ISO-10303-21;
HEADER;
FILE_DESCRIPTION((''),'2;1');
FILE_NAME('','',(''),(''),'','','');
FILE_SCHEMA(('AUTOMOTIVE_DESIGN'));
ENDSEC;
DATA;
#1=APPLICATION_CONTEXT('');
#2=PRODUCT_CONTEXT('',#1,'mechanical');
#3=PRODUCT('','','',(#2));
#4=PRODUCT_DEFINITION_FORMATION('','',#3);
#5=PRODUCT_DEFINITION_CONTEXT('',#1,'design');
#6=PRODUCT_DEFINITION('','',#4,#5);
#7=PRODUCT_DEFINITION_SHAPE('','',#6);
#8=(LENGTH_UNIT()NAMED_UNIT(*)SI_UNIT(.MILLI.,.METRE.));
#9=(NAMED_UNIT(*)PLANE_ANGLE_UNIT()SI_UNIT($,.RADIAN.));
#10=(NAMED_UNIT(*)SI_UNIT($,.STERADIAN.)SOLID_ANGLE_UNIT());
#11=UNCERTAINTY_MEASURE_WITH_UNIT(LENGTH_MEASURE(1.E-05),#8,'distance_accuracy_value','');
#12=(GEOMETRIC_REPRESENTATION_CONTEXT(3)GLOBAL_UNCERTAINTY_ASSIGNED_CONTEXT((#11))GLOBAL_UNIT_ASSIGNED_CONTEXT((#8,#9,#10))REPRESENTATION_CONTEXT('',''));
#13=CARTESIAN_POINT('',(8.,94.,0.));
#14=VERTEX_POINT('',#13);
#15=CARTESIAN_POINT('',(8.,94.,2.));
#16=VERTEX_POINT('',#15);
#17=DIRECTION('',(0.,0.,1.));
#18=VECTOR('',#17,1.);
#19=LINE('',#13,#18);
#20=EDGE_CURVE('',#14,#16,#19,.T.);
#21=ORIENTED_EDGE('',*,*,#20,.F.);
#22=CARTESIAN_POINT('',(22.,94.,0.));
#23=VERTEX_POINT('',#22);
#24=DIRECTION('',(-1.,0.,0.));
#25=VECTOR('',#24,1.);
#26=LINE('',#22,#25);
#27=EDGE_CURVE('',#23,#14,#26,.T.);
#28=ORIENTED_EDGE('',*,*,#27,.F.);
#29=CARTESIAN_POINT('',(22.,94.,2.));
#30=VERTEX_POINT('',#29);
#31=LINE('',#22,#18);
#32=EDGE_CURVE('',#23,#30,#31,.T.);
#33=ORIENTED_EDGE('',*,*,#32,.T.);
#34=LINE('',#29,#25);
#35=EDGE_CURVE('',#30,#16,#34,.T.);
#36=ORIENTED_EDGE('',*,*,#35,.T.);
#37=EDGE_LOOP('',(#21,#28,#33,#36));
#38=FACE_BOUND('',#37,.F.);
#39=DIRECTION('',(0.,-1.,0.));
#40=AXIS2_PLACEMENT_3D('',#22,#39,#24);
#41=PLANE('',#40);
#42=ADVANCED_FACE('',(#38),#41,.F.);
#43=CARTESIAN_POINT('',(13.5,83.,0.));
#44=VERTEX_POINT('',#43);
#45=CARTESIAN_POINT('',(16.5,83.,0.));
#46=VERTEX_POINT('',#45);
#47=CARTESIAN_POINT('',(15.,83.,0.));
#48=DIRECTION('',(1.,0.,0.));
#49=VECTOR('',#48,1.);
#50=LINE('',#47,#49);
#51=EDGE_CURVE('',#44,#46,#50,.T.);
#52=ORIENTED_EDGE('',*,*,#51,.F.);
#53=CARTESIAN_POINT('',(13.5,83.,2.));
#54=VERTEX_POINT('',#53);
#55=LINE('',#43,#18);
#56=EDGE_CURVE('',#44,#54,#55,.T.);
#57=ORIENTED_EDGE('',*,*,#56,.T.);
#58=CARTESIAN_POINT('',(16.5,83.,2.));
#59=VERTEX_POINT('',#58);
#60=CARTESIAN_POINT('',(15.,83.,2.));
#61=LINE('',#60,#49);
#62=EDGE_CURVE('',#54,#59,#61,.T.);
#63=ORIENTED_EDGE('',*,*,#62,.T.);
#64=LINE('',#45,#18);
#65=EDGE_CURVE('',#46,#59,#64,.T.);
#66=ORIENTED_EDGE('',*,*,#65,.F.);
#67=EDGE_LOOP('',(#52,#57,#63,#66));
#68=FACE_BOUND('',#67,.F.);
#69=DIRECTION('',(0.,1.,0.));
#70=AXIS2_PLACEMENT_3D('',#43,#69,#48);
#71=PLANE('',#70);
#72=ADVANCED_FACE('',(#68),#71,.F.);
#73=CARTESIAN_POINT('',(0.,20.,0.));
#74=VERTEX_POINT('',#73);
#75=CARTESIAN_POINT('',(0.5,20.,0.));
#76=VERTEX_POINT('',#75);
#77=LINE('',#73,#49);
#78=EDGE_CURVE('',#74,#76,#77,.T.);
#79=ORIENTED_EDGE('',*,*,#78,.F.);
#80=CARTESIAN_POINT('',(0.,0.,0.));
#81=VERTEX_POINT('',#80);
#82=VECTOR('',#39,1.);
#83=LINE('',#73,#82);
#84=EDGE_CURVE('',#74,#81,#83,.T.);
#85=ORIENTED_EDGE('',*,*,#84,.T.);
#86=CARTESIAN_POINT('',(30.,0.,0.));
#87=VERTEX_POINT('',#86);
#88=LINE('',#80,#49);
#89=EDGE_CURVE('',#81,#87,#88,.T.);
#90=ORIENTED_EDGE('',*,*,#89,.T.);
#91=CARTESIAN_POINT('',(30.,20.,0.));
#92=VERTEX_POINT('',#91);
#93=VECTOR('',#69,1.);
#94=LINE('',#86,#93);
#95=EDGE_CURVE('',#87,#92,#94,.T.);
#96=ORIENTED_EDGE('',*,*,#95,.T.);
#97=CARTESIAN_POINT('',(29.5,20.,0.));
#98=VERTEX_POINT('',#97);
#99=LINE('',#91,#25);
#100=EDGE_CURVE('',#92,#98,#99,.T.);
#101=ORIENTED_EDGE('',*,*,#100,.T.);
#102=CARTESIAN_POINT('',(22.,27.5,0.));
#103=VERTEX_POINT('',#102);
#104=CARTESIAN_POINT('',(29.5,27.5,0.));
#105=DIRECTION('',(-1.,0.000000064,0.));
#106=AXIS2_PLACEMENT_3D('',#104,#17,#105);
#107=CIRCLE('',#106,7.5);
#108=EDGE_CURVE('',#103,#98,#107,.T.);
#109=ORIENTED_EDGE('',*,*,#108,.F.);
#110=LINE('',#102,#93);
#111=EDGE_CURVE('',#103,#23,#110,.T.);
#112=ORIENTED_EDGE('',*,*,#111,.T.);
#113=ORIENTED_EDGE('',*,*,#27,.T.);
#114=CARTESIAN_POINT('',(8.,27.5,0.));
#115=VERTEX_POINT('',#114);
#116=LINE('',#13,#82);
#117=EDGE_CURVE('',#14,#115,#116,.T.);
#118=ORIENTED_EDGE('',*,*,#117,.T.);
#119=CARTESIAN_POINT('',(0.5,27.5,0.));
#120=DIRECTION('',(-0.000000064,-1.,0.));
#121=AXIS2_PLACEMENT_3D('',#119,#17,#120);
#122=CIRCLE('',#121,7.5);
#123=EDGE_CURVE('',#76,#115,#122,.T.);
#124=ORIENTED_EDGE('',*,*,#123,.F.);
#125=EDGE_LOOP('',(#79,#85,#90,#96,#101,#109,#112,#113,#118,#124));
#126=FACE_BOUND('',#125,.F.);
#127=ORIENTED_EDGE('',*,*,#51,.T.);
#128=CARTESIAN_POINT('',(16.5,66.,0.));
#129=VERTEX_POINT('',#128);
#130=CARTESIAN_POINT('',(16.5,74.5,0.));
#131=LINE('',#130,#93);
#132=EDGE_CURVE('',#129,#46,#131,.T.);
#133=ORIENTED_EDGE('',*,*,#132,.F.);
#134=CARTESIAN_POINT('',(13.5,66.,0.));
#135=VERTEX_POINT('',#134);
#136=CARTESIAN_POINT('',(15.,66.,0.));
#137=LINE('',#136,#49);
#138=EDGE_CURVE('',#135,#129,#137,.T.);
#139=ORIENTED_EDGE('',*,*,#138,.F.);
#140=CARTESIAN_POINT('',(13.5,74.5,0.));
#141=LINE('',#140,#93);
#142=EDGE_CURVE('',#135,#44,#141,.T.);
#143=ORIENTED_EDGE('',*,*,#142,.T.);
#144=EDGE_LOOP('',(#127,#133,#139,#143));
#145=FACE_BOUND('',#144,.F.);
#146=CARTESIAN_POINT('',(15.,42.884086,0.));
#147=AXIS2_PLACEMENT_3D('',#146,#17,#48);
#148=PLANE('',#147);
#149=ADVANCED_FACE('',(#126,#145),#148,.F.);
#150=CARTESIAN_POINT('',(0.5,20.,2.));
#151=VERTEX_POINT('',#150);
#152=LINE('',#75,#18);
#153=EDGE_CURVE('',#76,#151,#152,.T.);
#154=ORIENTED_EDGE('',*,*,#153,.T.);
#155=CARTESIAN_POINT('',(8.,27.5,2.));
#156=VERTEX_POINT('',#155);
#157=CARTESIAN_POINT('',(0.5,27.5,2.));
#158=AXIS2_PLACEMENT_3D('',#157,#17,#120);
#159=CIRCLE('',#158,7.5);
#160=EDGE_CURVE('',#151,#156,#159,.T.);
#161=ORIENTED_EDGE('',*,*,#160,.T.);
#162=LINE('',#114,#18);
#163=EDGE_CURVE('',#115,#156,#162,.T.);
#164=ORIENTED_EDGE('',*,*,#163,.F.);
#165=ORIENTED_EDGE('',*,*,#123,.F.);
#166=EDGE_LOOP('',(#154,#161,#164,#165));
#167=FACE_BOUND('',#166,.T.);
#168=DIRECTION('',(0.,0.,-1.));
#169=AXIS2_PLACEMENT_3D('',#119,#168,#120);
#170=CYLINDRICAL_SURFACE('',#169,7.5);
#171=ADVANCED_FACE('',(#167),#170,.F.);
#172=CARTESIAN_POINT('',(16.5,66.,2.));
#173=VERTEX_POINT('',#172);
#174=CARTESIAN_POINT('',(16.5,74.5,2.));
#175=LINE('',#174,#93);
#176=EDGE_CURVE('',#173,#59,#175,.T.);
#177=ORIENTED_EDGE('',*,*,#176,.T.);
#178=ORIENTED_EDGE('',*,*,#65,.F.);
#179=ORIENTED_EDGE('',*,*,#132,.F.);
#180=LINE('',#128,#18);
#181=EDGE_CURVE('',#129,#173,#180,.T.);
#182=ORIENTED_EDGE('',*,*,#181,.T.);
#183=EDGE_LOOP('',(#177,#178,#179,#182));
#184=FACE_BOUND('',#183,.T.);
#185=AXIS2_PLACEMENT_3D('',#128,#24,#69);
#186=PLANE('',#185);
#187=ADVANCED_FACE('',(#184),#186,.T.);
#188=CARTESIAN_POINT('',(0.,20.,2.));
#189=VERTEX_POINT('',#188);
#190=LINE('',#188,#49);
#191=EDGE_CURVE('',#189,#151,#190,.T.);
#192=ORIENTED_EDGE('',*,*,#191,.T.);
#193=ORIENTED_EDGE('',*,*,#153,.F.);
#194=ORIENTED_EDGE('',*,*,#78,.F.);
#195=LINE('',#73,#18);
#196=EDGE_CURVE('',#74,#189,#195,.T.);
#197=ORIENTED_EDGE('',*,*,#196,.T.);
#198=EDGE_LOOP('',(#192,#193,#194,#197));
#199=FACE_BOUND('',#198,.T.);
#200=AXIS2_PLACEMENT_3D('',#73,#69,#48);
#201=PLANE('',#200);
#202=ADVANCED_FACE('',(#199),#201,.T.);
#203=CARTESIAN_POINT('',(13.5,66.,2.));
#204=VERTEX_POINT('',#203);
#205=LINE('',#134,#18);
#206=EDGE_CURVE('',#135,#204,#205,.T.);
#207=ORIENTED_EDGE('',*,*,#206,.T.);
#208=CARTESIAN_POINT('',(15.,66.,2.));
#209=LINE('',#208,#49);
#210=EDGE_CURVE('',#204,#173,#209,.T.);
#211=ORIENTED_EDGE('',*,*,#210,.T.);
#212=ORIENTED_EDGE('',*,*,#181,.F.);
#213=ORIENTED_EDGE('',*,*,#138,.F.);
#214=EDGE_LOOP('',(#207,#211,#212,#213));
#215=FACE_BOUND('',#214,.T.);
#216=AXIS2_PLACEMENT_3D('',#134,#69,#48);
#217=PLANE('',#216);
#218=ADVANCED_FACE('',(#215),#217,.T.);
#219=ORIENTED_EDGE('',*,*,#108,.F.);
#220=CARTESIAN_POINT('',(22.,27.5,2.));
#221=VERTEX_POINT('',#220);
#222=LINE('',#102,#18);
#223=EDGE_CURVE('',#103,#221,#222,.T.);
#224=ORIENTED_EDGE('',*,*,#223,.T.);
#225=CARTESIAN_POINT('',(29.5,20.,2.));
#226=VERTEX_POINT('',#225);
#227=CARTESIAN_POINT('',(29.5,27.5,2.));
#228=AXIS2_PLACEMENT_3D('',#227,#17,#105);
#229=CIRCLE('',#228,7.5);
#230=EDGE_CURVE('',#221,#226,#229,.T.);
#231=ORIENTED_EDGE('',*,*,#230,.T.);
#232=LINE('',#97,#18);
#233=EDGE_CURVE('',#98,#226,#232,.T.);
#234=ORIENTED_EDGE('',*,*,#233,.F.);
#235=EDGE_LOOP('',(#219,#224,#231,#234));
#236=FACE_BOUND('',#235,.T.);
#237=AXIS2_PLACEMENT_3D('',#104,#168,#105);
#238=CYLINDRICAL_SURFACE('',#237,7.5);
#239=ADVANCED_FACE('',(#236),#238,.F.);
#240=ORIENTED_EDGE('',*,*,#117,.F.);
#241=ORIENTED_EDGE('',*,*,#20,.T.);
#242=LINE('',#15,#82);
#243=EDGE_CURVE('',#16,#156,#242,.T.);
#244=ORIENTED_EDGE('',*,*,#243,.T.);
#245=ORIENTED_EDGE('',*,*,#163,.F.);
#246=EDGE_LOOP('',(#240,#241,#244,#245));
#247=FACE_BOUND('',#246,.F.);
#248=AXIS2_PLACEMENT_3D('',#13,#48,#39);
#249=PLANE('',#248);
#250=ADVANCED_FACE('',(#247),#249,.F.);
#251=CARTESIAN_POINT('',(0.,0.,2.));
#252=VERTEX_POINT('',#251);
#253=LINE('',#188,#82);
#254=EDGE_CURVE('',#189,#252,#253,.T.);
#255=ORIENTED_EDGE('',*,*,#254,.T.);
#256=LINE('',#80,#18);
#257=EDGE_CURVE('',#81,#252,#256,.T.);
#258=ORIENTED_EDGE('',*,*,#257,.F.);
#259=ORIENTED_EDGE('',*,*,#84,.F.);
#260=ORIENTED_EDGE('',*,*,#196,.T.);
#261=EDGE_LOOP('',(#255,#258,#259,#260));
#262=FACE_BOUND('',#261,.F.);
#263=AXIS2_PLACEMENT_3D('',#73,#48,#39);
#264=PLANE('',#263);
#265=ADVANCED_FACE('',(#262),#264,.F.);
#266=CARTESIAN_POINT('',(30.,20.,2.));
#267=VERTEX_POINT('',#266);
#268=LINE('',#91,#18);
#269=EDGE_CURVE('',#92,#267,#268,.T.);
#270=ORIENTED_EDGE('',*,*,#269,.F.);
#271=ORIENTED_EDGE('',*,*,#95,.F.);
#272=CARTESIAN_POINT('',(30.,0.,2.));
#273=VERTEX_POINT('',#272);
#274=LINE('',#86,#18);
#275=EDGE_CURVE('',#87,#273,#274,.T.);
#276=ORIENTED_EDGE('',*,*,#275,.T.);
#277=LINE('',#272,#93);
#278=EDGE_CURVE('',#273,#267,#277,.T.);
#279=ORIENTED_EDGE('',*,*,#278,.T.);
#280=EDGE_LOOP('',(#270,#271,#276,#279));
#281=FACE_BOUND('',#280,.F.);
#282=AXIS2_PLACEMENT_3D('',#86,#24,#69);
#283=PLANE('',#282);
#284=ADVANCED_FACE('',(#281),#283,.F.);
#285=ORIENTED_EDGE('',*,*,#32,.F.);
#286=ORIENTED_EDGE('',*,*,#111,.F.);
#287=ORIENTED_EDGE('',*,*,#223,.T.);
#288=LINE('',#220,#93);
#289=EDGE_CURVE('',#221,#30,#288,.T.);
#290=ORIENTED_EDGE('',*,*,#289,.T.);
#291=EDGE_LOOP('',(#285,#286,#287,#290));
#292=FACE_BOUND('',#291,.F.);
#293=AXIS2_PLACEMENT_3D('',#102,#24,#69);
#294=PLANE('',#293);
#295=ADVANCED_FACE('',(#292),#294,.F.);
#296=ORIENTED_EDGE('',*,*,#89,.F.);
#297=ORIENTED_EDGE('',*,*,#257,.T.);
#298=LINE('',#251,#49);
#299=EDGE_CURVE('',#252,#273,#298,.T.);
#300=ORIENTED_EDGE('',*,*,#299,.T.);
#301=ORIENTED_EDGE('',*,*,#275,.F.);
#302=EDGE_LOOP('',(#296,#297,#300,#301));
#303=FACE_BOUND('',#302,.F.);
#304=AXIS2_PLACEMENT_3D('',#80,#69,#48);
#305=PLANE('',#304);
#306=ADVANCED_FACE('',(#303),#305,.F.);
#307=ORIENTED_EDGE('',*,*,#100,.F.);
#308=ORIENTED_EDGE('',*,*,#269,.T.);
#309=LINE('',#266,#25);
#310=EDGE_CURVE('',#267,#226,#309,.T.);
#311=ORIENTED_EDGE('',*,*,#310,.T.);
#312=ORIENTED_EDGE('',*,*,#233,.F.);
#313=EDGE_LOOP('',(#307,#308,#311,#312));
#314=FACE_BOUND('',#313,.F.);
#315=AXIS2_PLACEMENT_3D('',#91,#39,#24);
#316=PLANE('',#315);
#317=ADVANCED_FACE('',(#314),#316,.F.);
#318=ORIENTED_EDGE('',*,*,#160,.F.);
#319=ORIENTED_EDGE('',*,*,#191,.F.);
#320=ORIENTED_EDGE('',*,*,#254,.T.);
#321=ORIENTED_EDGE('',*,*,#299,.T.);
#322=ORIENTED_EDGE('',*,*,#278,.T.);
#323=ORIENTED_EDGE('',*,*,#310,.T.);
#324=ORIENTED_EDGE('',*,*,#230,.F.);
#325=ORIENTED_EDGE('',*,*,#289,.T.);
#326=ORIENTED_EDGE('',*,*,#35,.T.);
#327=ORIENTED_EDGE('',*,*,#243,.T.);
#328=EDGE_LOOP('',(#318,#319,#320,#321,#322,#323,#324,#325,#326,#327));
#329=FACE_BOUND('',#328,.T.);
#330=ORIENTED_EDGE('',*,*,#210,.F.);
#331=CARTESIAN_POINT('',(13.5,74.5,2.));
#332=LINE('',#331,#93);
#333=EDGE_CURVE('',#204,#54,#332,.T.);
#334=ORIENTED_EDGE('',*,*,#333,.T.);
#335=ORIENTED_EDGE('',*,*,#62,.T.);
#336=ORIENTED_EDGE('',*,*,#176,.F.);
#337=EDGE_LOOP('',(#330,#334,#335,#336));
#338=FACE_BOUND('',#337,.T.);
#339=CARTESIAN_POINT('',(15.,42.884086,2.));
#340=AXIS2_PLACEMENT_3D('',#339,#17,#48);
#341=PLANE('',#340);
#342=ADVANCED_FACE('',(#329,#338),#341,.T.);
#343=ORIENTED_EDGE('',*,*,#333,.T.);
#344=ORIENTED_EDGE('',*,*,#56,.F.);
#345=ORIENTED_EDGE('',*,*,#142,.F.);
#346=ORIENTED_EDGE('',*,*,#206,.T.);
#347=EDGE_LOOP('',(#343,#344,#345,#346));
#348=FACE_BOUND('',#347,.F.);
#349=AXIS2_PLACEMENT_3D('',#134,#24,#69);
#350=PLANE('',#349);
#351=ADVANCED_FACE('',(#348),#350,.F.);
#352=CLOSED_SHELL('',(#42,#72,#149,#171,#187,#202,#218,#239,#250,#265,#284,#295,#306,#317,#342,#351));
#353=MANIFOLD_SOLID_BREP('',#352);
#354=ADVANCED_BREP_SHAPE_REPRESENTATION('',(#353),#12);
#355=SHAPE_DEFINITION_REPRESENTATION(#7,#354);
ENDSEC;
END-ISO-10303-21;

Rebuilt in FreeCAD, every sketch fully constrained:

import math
import FreeCAD as App
import Part
import Sketcher
from FreeCAD import Vector
Q = App.Units.Quantity

doc = App.newDocument("Part")
body = doc.addObject("PartDesign::Body", "Body")

sketch1 = body.newObject("Sketcher::SketchObject", "Sketch")
sketch1.AttachmentSupport = (doc.getObject("XY_Plane"), [""])
sketch1.MapMode = "FlatFace"
sketch1.addGeometry([
    Part.LineSegment(Vector(0, 0, 0), Vector(30, 0, 0)),
    Part.LineSegment(Vector(30, 0, 0), Vector(30, 20, 0)),
    Part.LineSegment(Vector(30, 20, 0), Vector(29.5, 20, 0)),
    Part.ArcOfCircle(Part.Circle(Vector(29.5, 27.5, 0), Vector(0, 0, 1), 7.5), math.radians(180), math.radians(270)),
    Part.LineSegment(Vector(22, 27.5, 0), Vector(22, 94, 0)),
    Part.LineSegment(Vector(22, 94, 0), Vector(8, 94, 0)),
    Part.LineSegment(Vector(8, 94, 0), Vector(8, 27.5, 0)),
    Part.ArcOfCircle(Part.Circle(Vector(0.5, 27.5, 0), Vector(0, 0, 1), 7.5), math.radians(-90), math.radians(0)),
    Part.LineSegment(Vector(0.5, 20, 0), Vector(0, 20, 0)),
    Part.LineSegment(Vector(0, 20, 0), Vector(0, 0, 0)),
    Part.LineSegment(Vector(16.5, 66, 0), Vector(13.5, 66, 0)),
    Part.LineSegment(Vector(13.5, 66, 0), Vector(13.5, 83, 0)),
    Part.LineSegment(Vector(13.5, 83, 0), Vector(16.5, 83, 0)),
    Part.LineSegment(Vector(16.5, 83, 0), Vector(16.5, 66, 0)),
], False)
sketch1.addConstraint([
    Sketcher.Constraint("Coincident", 0, 2, 1, 1),
    Sketcher.Constraint("Coincident", 1, 2, 2, 1),
    Sketcher.Constraint("Tangent", 2, 2, 3, 2),
    Sketcher.Constraint("Tangent", 3, 1, 4, 1),
    Sketcher.Constraint("Coincident", 4, 2, 5, 1),
    Sketcher.Constraint("Coincident", 5, 2, 6, 1),
    Sketcher.Constraint("Tangent", 6, 2, 7, 2),
    Sketcher.Constraint("Tangent", 7, 1, 8, 1),
    Sketcher.Constraint("Coincident", 8, 2, 9, 1),
    Sketcher.Constraint("Coincident", 9, 2, 0, 1),
    Sketcher.Constraint("Coincident", 10, 2, 11, 1),
    Sketcher.Constraint("Coincident", 11, 2, 12, 1),
    Sketcher.Constraint("Coincident", 12, 2, 13, 1),
    Sketcher.Constraint("Coincident", 13, 2, 10, 1),
    Sketcher.Constraint("Horizontal", 0),
    Sketcher.Constraint("Vertical", 1),
    Sketcher.Constraint("Horizontal", 2),
    Sketcher.Constraint("Vertical", 4),
    Sketcher.Constraint("Horizontal", 5),
    Sketcher.Constraint("Vertical", 6),
    Sketcher.Constraint("Horizontal", 8),
    Sketcher.Constraint("Vertical", 9),
    Sketcher.Constraint("Horizontal", 10),
    Sketcher.Constraint("Vertical", 11),
    Sketcher.Constraint("Horizontal", 12),
    Sketcher.Constraint("Vertical", 13),
    Sketcher.Constraint("Coincident", 9, 2, -1, 1),
    Sketcher.Constraint("Equal", 3, 7),
    Sketcher.Constraint("Horizontal", 3, 3, 7, 3),
    Sketcher.Constraint("Equal", 2, 8),
    Sketcher.Constraint("Radius", 3, Q("7.5 mm")),
    Sketcher.Constraint("DistanceX", 0, 1, 0, 2, Q("30 mm")),
    Sketcher.Constraint("DistanceX", 5, 2, 5, 1, Q("14 mm")),
    Sketcher.Constraint("DistanceX", 10, 2, 10, 1, Q("3 mm")),
    Sketcher.Constraint("DistanceY", 1, 1, 1, 2, Q("20 mm")),
    Sketcher.Constraint("DistanceY", 11, 1, 11, 2, Q("17 mm")),
    Sketcher.Constraint("DistanceY", 4, 1, 4, 2, Q("66.5 mm")),
    Sketcher.Constraint("DistanceY", -1, 1, 10, 2, Q("66 mm")),
    Sketcher.Constraint("DistanceX", 7, 3, 10, 2, Q("13 mm")),
])
pad1 = body.newObject("PartDesign::Pad", "Pad")
pad1.Profile = sketch1
pad1.Length = 2

doc.recompute()
